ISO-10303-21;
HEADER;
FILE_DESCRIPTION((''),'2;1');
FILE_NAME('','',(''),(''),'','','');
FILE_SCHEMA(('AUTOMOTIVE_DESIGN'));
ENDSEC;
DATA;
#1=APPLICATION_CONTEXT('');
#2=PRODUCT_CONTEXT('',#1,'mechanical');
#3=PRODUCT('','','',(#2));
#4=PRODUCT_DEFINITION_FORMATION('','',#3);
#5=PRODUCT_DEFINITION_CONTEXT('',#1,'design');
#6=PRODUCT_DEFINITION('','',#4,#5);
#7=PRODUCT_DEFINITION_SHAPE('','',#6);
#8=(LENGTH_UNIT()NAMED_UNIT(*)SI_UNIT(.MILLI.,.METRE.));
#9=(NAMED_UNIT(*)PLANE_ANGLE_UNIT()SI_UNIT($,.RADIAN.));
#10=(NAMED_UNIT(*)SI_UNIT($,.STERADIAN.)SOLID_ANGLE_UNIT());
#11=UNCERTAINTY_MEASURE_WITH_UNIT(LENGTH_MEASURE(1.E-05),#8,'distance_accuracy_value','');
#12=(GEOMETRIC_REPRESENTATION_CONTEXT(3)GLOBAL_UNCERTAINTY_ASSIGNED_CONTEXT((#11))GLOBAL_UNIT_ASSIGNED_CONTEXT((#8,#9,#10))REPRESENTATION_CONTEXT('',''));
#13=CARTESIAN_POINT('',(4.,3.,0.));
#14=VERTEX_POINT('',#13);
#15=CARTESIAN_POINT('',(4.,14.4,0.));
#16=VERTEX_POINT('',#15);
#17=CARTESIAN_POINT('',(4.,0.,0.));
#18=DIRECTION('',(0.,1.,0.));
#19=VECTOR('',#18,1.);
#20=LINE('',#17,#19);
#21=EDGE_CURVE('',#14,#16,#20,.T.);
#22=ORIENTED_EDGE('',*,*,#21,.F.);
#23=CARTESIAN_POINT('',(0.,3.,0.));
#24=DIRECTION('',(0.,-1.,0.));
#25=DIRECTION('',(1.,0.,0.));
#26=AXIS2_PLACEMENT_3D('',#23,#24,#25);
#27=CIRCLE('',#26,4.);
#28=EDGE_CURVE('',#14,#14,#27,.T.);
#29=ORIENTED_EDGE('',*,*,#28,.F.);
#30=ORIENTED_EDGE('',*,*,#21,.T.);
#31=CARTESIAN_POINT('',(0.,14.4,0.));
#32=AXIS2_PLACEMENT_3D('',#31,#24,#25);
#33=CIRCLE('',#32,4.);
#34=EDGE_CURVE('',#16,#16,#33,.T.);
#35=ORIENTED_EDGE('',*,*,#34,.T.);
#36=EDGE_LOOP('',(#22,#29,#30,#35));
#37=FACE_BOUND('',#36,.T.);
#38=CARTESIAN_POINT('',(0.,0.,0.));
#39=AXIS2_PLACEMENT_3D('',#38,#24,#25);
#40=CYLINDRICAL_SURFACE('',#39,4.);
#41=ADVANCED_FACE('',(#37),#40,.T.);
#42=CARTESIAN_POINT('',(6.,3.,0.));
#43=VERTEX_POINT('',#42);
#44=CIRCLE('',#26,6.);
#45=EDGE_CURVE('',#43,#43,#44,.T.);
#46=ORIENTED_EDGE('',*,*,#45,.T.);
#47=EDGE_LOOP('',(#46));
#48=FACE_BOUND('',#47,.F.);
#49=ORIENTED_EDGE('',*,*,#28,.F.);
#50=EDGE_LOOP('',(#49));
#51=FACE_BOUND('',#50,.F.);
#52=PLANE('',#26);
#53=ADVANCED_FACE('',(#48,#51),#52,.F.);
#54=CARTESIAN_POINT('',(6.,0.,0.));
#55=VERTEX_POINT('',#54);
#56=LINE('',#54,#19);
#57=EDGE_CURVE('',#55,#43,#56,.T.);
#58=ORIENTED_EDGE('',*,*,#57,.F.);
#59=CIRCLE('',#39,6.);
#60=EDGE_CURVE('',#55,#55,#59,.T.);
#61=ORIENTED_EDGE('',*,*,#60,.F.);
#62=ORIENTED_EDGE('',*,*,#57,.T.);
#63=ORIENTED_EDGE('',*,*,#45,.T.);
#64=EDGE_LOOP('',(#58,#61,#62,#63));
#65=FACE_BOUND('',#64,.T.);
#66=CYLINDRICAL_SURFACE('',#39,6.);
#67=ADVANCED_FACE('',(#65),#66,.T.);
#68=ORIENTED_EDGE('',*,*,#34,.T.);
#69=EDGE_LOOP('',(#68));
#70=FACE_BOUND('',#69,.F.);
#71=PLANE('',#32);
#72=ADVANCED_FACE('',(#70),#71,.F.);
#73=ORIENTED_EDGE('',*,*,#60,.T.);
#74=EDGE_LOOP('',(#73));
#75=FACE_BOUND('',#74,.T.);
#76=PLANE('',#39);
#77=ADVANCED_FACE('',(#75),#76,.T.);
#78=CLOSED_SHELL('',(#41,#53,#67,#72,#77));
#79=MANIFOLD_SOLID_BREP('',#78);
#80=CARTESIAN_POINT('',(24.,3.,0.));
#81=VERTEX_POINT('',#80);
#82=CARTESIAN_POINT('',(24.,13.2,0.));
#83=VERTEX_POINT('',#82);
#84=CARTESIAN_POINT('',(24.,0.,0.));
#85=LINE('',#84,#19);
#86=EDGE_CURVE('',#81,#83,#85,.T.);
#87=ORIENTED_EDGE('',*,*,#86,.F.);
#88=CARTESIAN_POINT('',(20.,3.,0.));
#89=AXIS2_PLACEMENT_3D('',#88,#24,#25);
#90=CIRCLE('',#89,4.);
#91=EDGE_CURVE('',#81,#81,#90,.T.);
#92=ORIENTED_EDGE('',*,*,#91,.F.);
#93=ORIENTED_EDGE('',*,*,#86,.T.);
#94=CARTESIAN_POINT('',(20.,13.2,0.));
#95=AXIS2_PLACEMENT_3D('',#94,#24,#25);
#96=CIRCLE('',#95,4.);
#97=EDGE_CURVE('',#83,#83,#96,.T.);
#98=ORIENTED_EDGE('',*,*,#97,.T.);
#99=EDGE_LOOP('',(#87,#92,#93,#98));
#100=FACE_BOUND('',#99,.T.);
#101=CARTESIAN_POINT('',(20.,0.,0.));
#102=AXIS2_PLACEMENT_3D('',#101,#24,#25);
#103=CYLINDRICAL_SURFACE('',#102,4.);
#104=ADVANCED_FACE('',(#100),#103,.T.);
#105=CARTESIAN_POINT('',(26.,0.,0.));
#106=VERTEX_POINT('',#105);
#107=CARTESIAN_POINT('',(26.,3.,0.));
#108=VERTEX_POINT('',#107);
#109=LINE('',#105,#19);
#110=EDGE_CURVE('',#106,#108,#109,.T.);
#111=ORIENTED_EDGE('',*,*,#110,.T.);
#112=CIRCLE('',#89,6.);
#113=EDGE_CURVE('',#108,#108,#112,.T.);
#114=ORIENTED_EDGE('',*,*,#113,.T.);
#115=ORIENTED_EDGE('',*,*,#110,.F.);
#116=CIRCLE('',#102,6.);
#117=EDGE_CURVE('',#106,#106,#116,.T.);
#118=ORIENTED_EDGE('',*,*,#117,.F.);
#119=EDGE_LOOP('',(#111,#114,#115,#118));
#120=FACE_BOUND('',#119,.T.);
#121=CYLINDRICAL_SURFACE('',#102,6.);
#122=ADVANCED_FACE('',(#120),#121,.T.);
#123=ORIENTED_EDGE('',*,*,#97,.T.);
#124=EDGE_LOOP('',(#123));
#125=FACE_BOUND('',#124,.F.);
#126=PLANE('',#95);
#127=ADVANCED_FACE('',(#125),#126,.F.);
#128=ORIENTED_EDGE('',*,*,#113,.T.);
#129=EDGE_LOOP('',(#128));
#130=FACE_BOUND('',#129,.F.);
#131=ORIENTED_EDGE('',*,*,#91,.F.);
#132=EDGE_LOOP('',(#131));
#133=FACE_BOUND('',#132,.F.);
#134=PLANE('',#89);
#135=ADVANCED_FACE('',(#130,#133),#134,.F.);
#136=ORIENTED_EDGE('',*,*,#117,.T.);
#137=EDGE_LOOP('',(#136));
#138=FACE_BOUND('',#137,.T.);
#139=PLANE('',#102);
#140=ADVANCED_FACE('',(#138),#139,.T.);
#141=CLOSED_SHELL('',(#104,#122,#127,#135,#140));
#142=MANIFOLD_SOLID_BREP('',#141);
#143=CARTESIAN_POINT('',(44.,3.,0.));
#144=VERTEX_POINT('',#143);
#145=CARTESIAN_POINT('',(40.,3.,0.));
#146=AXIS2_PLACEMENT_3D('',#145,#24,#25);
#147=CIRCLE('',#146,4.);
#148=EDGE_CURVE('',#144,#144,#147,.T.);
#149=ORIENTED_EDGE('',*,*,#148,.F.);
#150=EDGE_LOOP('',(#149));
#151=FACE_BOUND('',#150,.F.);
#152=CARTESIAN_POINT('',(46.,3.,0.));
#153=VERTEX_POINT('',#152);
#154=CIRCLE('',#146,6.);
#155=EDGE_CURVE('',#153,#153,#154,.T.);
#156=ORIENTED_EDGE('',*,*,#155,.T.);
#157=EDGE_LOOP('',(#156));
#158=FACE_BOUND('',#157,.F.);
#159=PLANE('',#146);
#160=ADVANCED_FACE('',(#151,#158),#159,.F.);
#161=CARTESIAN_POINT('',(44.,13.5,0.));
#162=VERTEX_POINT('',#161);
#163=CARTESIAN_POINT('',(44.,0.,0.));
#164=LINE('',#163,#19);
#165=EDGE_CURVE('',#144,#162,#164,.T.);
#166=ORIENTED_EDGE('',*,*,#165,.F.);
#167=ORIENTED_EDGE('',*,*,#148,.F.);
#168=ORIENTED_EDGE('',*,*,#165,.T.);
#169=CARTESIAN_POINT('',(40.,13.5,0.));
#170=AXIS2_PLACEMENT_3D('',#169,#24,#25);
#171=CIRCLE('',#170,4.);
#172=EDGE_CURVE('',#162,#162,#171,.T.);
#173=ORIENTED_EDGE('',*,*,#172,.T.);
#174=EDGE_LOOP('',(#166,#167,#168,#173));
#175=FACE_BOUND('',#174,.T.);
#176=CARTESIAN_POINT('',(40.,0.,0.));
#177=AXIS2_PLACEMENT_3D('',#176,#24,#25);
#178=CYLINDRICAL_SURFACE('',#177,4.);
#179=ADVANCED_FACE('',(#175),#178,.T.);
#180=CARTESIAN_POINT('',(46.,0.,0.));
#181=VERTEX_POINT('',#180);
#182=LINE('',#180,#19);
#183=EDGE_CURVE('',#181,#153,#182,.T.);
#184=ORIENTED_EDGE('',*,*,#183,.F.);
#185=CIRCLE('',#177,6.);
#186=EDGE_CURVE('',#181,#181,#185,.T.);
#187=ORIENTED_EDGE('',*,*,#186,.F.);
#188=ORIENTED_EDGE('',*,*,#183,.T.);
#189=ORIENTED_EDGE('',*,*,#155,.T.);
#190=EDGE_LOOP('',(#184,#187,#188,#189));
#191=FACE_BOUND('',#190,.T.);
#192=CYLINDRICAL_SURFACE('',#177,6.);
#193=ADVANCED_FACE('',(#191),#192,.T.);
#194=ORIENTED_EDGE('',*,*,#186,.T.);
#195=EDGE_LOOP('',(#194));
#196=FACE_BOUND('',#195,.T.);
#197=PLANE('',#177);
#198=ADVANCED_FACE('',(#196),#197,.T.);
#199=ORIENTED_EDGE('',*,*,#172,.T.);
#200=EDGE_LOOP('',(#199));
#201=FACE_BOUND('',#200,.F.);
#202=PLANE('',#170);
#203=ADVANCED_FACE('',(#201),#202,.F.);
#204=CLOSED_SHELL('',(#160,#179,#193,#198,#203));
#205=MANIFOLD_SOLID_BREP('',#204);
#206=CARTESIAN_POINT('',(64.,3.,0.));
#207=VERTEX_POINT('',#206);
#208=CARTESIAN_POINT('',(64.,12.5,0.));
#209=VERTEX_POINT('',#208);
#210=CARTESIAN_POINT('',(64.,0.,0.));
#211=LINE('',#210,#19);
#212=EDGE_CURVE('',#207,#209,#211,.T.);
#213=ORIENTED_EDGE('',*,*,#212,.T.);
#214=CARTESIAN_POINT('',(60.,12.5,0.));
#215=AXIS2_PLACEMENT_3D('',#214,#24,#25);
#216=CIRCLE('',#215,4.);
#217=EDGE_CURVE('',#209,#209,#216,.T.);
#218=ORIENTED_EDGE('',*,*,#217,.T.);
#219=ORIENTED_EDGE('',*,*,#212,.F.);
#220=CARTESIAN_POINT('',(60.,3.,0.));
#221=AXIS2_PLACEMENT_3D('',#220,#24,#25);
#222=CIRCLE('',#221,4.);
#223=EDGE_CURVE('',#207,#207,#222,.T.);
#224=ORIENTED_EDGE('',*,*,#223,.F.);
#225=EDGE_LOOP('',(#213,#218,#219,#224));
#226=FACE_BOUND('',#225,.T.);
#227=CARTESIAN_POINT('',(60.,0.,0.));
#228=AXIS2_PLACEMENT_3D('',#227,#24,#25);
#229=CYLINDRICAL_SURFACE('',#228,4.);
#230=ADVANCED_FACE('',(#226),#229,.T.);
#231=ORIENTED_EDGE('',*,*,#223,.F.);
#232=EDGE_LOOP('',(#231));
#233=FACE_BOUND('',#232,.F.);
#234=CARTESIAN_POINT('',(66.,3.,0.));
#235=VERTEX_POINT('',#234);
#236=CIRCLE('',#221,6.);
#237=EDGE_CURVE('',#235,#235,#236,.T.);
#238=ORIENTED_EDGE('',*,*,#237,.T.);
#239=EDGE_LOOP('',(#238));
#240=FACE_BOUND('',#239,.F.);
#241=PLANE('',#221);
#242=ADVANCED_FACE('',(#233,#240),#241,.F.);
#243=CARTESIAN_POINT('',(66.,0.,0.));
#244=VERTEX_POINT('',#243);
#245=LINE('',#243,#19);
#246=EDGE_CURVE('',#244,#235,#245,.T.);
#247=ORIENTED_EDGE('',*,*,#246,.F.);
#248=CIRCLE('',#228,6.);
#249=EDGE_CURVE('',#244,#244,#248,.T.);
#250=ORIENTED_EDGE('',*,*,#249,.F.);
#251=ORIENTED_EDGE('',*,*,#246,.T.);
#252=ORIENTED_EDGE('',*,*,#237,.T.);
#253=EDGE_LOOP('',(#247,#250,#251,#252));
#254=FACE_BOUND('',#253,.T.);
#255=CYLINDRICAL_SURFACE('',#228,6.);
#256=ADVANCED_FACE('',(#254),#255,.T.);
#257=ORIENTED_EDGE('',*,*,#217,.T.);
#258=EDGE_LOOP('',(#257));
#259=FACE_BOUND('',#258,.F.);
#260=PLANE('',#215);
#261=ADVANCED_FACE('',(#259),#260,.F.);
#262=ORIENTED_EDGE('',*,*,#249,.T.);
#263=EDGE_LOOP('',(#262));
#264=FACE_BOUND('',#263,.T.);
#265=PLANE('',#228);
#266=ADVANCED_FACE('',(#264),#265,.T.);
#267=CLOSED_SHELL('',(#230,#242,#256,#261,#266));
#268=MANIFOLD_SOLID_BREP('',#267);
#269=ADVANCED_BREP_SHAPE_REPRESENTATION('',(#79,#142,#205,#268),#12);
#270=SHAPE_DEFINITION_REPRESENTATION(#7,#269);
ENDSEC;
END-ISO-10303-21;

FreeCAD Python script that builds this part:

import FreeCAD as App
import Part
import Sketcher

doc = App.newDocument("Part")
body = doc.addObject("PartDesign::Body", "Body")

sketch1 = body.newObject("Sketcher::SketchObject", "Sketch")
sketch1.AttachmentSupport = (doc.getObject("XZ_Plane"), [""])
sketch1.MapMode = "FlatFace"
sketch1.addGeometry(Part.Circle(App.Vector(0, 0, 0), App.Vector(0, 0, 1), 4), False)
sketch1.addConstraint(Sketcher.Constraint("Coincident", 0, 3, -1, 1))
sketch1.addConstraint(Sketcher.Constraint("Diameter", 0, 8.0))
pad1 = body.newObject("PartDesign::Pad", "Pad")
pad1.Profile = sketch1
pad1.Length = 14.4
pad1.Reversed = True
body2 = doc.addObject("PartDesign::Body", "Body001")

sketch2 = body2.newObject("Sketcher::SketchObject", "Sketch001")
sketch2.AttachmentSupport = (doc.getObject("XZ_Plane001"), [""])
sketch2.MapMode = "FlatFace"
sketch2.addGeometry(Part.Circle(App.Vector(20, 0, 0), App.Vector(0, 0, 1), 4), False)
sketch2.addConstraint(Sketcher.Constraint("PointOnObject", 0, 3, -1))
sketch2.addConstraint(Sketcher.Constraint("Diameter", 0, 8.0))
sketch2.addConstraint(Sketcher.Constraint("DistanceX", -1, 1, 0, 3, 20.0))
pad2 = body2.newObject("PartDesign::Pad", "Pad001")
pad2.Profile = sketch2
pad2.Length = 13.2
pad2.Reversed = True
body3 = doc.addObject("PartDesign::Body", "Body002")

sketch3 = body3.newObject("Sketcher::SketchObject", "Sketch002")
sketch3.AttachmentSupport = (doc.getObject("XZ_Plane002"), [""])
sketch3.MapMode = "FlatFace"
sketch3.addGeometry(Part.Circle(App.Vector(40, 0, 0), App.Vector(0, 0, 1), 4), False)
sketch3.addConstraint(Sketcher.Constraint("PointOnObject", 0, 3, -1))
sketch3.addConstraint(Sketcher.Constraint("Diameter", 0, 8.0))
sketch3.addConstraint(Sketcher.Constraint("DistanceX", -1, 1, 0, 3, 40.0))
pad3 = body3.newObject("PartDesign::Pad", "Pad002")
pad3.Profile = sketch3
pad3.Length = 13.5
pad3.Reversed = True
body4 = doc.addObject("PartDesign::Body", "Body003")

sketch4 = body4.newObject("Sketcher::SketchObject", "Sketch003")
sketch4.AttachmentSupport = (doc.getObject("XZ_Plane003"), [""])
sketch4.MapMode = "FlatFace"
sketch4.addGeometry(Part.Circle(App.Vector(60, 0, 0), App.Vector(0, 0, 1), 4), False)
sketch4.addConstraint(Sketcher.Constraint("PointOnObject", 0, 3, -1))
sketch4.addConstraint(Sketcher.Constraint("Diameter", 0, 8.0))
sketch4.addConstraint(Sketcher.Constraint("DistanceX", -1, 1, 0, 3, 60.0))
pad4 = body4.newObject("PartDesign::Pad", "Pad003")
pad4.Profile = sketch4
pad4.Length = 12.5
pad4.Reversed = True
body.AllowCompound = True
doc.recompute()

boolean = body.newObject("PartDesign::Boolean", "Boolean")
boolean.Type = "Fuse"
boolean.addObjects([body2])
doc.recompute()

boolean2 = body.newObject("PartDesign::Boolean", "Boolean001")
boolean2.Type = "Fuse"
boolean2.addObjects([body3])
doc.recompute()

boolean3 = body.newObject("PartDesign::Boolean", "Boolean002")
boolean3.Type = "Fuse"
boolean3.addObjects([body4])

sketch5 = body.newObject("Sketcher::SketchObject", "Sketch004")
sketch5.AttachmentSupport = (doc.getObject("XZ_Plane"), [""])
sketch5.MapMode = "FlatFace"
sketch5.addGeometry(Part.Circle(App.Vector(40, 0, 0), App.Vector(0, 0, 1), 6), False)
sketch5.addGeometry(Part.Circle(App.Vector(40, 0, 0), App.Vector(0, 0, 1), 4), False)
sketch5.addGeometry(Part.Circle(App.Vector(20, 0, 0), App.Vector(0, 0, 1), 6), False)
sketch5.addGeometry(Part.Circle(App.Vector(20, 0, 0), App.Vector(0, 0, 1), 4), False)
sketch5.addGeometry(Part.Circle(App.Vector(0, 0, 0), App.Vector(0, 0, 1), 6), False)
sketch5.addGeometry(Part.Circle(App.Vector(0, 0, 0), App.Vector(0, 0, 1), 4), False)
sketch5.addGeometry(Part.Circle(App.Vector(60, 0, 0), App.Vector(0, 0, 1), 6), False)
sketch5.addGeometry(Part.Circle(App.Vector(60, 0, 0), App.Vector(0, 0, 1), 4), False)
sketch5.addConstraint(Sketcher.Constraint("Coincident", 4, 3, -1, 1))
sketch5.addConstraint(Sketcher.Constraint("Coincident", 5, 3, -1, 1))
sketch5.addConstraint(Sketcher.Constraint("Coincident", 1, 3, 0, 3))
sketch5.addConstraint(Sketcher.Constraint("Coincident", 3, 3, 2, 3))
sketch5.addConstraint(Sketcher.Constraint("Coincident", 7, 3, 6, 3))
sketch5.addConstraint(Sketcher.Constraint("Equal", 0, 2))
sketch5.addConstraint(Sketcher.Constraint("Equal", 1, 3))
sketch5.addConstraint(Sketcher.Constraint("Equal", 2, 4))
sketch5.addConstraint(Sketcher.Constraint("Equal", 3, 5))
sketch5.addConstraint(Sketcher.Constraint("Equal", 4, 6))
sketch5.addConstraint(Sketcher.Constraint("Equal", 5, 7))
sketch5.addConstraint(Sketcher.Constraint("PointOnObject", 0, 3, -1))
sketch5.addConstraint(Sketcher.Constraint("PointOnObject", 2, 3, -1))
sketch5.addConstraint(Sketcher.Constraint("PointOnObject", 6, 3, -1))
sketch5.addConstraint(Sketcher.Constraint("Diameter", 0, 12.0))
sketch5.addConstraint(Sketcher.Constraint("Diameter", 1, 8.0))
sketch5.addConstraint(Sketcher.Constraint("DistanceX", -1, 1, 0, 3, 40.0))
sketch5.addConstraint(Sketcher.Constraint("DistanceX", -1, 1, 2, 3, 20.0))
sketch5.addConstraint(Sketcher.Constraint("DistanceX", -1, 1, 6, 3, 60.0))
pad5 = body.newObject("PartDesign::Pad", "Pad004")
pad5.Profile = sketch5
pad5.Length = 3
pad5.Reversed = True

doc.recompute()
